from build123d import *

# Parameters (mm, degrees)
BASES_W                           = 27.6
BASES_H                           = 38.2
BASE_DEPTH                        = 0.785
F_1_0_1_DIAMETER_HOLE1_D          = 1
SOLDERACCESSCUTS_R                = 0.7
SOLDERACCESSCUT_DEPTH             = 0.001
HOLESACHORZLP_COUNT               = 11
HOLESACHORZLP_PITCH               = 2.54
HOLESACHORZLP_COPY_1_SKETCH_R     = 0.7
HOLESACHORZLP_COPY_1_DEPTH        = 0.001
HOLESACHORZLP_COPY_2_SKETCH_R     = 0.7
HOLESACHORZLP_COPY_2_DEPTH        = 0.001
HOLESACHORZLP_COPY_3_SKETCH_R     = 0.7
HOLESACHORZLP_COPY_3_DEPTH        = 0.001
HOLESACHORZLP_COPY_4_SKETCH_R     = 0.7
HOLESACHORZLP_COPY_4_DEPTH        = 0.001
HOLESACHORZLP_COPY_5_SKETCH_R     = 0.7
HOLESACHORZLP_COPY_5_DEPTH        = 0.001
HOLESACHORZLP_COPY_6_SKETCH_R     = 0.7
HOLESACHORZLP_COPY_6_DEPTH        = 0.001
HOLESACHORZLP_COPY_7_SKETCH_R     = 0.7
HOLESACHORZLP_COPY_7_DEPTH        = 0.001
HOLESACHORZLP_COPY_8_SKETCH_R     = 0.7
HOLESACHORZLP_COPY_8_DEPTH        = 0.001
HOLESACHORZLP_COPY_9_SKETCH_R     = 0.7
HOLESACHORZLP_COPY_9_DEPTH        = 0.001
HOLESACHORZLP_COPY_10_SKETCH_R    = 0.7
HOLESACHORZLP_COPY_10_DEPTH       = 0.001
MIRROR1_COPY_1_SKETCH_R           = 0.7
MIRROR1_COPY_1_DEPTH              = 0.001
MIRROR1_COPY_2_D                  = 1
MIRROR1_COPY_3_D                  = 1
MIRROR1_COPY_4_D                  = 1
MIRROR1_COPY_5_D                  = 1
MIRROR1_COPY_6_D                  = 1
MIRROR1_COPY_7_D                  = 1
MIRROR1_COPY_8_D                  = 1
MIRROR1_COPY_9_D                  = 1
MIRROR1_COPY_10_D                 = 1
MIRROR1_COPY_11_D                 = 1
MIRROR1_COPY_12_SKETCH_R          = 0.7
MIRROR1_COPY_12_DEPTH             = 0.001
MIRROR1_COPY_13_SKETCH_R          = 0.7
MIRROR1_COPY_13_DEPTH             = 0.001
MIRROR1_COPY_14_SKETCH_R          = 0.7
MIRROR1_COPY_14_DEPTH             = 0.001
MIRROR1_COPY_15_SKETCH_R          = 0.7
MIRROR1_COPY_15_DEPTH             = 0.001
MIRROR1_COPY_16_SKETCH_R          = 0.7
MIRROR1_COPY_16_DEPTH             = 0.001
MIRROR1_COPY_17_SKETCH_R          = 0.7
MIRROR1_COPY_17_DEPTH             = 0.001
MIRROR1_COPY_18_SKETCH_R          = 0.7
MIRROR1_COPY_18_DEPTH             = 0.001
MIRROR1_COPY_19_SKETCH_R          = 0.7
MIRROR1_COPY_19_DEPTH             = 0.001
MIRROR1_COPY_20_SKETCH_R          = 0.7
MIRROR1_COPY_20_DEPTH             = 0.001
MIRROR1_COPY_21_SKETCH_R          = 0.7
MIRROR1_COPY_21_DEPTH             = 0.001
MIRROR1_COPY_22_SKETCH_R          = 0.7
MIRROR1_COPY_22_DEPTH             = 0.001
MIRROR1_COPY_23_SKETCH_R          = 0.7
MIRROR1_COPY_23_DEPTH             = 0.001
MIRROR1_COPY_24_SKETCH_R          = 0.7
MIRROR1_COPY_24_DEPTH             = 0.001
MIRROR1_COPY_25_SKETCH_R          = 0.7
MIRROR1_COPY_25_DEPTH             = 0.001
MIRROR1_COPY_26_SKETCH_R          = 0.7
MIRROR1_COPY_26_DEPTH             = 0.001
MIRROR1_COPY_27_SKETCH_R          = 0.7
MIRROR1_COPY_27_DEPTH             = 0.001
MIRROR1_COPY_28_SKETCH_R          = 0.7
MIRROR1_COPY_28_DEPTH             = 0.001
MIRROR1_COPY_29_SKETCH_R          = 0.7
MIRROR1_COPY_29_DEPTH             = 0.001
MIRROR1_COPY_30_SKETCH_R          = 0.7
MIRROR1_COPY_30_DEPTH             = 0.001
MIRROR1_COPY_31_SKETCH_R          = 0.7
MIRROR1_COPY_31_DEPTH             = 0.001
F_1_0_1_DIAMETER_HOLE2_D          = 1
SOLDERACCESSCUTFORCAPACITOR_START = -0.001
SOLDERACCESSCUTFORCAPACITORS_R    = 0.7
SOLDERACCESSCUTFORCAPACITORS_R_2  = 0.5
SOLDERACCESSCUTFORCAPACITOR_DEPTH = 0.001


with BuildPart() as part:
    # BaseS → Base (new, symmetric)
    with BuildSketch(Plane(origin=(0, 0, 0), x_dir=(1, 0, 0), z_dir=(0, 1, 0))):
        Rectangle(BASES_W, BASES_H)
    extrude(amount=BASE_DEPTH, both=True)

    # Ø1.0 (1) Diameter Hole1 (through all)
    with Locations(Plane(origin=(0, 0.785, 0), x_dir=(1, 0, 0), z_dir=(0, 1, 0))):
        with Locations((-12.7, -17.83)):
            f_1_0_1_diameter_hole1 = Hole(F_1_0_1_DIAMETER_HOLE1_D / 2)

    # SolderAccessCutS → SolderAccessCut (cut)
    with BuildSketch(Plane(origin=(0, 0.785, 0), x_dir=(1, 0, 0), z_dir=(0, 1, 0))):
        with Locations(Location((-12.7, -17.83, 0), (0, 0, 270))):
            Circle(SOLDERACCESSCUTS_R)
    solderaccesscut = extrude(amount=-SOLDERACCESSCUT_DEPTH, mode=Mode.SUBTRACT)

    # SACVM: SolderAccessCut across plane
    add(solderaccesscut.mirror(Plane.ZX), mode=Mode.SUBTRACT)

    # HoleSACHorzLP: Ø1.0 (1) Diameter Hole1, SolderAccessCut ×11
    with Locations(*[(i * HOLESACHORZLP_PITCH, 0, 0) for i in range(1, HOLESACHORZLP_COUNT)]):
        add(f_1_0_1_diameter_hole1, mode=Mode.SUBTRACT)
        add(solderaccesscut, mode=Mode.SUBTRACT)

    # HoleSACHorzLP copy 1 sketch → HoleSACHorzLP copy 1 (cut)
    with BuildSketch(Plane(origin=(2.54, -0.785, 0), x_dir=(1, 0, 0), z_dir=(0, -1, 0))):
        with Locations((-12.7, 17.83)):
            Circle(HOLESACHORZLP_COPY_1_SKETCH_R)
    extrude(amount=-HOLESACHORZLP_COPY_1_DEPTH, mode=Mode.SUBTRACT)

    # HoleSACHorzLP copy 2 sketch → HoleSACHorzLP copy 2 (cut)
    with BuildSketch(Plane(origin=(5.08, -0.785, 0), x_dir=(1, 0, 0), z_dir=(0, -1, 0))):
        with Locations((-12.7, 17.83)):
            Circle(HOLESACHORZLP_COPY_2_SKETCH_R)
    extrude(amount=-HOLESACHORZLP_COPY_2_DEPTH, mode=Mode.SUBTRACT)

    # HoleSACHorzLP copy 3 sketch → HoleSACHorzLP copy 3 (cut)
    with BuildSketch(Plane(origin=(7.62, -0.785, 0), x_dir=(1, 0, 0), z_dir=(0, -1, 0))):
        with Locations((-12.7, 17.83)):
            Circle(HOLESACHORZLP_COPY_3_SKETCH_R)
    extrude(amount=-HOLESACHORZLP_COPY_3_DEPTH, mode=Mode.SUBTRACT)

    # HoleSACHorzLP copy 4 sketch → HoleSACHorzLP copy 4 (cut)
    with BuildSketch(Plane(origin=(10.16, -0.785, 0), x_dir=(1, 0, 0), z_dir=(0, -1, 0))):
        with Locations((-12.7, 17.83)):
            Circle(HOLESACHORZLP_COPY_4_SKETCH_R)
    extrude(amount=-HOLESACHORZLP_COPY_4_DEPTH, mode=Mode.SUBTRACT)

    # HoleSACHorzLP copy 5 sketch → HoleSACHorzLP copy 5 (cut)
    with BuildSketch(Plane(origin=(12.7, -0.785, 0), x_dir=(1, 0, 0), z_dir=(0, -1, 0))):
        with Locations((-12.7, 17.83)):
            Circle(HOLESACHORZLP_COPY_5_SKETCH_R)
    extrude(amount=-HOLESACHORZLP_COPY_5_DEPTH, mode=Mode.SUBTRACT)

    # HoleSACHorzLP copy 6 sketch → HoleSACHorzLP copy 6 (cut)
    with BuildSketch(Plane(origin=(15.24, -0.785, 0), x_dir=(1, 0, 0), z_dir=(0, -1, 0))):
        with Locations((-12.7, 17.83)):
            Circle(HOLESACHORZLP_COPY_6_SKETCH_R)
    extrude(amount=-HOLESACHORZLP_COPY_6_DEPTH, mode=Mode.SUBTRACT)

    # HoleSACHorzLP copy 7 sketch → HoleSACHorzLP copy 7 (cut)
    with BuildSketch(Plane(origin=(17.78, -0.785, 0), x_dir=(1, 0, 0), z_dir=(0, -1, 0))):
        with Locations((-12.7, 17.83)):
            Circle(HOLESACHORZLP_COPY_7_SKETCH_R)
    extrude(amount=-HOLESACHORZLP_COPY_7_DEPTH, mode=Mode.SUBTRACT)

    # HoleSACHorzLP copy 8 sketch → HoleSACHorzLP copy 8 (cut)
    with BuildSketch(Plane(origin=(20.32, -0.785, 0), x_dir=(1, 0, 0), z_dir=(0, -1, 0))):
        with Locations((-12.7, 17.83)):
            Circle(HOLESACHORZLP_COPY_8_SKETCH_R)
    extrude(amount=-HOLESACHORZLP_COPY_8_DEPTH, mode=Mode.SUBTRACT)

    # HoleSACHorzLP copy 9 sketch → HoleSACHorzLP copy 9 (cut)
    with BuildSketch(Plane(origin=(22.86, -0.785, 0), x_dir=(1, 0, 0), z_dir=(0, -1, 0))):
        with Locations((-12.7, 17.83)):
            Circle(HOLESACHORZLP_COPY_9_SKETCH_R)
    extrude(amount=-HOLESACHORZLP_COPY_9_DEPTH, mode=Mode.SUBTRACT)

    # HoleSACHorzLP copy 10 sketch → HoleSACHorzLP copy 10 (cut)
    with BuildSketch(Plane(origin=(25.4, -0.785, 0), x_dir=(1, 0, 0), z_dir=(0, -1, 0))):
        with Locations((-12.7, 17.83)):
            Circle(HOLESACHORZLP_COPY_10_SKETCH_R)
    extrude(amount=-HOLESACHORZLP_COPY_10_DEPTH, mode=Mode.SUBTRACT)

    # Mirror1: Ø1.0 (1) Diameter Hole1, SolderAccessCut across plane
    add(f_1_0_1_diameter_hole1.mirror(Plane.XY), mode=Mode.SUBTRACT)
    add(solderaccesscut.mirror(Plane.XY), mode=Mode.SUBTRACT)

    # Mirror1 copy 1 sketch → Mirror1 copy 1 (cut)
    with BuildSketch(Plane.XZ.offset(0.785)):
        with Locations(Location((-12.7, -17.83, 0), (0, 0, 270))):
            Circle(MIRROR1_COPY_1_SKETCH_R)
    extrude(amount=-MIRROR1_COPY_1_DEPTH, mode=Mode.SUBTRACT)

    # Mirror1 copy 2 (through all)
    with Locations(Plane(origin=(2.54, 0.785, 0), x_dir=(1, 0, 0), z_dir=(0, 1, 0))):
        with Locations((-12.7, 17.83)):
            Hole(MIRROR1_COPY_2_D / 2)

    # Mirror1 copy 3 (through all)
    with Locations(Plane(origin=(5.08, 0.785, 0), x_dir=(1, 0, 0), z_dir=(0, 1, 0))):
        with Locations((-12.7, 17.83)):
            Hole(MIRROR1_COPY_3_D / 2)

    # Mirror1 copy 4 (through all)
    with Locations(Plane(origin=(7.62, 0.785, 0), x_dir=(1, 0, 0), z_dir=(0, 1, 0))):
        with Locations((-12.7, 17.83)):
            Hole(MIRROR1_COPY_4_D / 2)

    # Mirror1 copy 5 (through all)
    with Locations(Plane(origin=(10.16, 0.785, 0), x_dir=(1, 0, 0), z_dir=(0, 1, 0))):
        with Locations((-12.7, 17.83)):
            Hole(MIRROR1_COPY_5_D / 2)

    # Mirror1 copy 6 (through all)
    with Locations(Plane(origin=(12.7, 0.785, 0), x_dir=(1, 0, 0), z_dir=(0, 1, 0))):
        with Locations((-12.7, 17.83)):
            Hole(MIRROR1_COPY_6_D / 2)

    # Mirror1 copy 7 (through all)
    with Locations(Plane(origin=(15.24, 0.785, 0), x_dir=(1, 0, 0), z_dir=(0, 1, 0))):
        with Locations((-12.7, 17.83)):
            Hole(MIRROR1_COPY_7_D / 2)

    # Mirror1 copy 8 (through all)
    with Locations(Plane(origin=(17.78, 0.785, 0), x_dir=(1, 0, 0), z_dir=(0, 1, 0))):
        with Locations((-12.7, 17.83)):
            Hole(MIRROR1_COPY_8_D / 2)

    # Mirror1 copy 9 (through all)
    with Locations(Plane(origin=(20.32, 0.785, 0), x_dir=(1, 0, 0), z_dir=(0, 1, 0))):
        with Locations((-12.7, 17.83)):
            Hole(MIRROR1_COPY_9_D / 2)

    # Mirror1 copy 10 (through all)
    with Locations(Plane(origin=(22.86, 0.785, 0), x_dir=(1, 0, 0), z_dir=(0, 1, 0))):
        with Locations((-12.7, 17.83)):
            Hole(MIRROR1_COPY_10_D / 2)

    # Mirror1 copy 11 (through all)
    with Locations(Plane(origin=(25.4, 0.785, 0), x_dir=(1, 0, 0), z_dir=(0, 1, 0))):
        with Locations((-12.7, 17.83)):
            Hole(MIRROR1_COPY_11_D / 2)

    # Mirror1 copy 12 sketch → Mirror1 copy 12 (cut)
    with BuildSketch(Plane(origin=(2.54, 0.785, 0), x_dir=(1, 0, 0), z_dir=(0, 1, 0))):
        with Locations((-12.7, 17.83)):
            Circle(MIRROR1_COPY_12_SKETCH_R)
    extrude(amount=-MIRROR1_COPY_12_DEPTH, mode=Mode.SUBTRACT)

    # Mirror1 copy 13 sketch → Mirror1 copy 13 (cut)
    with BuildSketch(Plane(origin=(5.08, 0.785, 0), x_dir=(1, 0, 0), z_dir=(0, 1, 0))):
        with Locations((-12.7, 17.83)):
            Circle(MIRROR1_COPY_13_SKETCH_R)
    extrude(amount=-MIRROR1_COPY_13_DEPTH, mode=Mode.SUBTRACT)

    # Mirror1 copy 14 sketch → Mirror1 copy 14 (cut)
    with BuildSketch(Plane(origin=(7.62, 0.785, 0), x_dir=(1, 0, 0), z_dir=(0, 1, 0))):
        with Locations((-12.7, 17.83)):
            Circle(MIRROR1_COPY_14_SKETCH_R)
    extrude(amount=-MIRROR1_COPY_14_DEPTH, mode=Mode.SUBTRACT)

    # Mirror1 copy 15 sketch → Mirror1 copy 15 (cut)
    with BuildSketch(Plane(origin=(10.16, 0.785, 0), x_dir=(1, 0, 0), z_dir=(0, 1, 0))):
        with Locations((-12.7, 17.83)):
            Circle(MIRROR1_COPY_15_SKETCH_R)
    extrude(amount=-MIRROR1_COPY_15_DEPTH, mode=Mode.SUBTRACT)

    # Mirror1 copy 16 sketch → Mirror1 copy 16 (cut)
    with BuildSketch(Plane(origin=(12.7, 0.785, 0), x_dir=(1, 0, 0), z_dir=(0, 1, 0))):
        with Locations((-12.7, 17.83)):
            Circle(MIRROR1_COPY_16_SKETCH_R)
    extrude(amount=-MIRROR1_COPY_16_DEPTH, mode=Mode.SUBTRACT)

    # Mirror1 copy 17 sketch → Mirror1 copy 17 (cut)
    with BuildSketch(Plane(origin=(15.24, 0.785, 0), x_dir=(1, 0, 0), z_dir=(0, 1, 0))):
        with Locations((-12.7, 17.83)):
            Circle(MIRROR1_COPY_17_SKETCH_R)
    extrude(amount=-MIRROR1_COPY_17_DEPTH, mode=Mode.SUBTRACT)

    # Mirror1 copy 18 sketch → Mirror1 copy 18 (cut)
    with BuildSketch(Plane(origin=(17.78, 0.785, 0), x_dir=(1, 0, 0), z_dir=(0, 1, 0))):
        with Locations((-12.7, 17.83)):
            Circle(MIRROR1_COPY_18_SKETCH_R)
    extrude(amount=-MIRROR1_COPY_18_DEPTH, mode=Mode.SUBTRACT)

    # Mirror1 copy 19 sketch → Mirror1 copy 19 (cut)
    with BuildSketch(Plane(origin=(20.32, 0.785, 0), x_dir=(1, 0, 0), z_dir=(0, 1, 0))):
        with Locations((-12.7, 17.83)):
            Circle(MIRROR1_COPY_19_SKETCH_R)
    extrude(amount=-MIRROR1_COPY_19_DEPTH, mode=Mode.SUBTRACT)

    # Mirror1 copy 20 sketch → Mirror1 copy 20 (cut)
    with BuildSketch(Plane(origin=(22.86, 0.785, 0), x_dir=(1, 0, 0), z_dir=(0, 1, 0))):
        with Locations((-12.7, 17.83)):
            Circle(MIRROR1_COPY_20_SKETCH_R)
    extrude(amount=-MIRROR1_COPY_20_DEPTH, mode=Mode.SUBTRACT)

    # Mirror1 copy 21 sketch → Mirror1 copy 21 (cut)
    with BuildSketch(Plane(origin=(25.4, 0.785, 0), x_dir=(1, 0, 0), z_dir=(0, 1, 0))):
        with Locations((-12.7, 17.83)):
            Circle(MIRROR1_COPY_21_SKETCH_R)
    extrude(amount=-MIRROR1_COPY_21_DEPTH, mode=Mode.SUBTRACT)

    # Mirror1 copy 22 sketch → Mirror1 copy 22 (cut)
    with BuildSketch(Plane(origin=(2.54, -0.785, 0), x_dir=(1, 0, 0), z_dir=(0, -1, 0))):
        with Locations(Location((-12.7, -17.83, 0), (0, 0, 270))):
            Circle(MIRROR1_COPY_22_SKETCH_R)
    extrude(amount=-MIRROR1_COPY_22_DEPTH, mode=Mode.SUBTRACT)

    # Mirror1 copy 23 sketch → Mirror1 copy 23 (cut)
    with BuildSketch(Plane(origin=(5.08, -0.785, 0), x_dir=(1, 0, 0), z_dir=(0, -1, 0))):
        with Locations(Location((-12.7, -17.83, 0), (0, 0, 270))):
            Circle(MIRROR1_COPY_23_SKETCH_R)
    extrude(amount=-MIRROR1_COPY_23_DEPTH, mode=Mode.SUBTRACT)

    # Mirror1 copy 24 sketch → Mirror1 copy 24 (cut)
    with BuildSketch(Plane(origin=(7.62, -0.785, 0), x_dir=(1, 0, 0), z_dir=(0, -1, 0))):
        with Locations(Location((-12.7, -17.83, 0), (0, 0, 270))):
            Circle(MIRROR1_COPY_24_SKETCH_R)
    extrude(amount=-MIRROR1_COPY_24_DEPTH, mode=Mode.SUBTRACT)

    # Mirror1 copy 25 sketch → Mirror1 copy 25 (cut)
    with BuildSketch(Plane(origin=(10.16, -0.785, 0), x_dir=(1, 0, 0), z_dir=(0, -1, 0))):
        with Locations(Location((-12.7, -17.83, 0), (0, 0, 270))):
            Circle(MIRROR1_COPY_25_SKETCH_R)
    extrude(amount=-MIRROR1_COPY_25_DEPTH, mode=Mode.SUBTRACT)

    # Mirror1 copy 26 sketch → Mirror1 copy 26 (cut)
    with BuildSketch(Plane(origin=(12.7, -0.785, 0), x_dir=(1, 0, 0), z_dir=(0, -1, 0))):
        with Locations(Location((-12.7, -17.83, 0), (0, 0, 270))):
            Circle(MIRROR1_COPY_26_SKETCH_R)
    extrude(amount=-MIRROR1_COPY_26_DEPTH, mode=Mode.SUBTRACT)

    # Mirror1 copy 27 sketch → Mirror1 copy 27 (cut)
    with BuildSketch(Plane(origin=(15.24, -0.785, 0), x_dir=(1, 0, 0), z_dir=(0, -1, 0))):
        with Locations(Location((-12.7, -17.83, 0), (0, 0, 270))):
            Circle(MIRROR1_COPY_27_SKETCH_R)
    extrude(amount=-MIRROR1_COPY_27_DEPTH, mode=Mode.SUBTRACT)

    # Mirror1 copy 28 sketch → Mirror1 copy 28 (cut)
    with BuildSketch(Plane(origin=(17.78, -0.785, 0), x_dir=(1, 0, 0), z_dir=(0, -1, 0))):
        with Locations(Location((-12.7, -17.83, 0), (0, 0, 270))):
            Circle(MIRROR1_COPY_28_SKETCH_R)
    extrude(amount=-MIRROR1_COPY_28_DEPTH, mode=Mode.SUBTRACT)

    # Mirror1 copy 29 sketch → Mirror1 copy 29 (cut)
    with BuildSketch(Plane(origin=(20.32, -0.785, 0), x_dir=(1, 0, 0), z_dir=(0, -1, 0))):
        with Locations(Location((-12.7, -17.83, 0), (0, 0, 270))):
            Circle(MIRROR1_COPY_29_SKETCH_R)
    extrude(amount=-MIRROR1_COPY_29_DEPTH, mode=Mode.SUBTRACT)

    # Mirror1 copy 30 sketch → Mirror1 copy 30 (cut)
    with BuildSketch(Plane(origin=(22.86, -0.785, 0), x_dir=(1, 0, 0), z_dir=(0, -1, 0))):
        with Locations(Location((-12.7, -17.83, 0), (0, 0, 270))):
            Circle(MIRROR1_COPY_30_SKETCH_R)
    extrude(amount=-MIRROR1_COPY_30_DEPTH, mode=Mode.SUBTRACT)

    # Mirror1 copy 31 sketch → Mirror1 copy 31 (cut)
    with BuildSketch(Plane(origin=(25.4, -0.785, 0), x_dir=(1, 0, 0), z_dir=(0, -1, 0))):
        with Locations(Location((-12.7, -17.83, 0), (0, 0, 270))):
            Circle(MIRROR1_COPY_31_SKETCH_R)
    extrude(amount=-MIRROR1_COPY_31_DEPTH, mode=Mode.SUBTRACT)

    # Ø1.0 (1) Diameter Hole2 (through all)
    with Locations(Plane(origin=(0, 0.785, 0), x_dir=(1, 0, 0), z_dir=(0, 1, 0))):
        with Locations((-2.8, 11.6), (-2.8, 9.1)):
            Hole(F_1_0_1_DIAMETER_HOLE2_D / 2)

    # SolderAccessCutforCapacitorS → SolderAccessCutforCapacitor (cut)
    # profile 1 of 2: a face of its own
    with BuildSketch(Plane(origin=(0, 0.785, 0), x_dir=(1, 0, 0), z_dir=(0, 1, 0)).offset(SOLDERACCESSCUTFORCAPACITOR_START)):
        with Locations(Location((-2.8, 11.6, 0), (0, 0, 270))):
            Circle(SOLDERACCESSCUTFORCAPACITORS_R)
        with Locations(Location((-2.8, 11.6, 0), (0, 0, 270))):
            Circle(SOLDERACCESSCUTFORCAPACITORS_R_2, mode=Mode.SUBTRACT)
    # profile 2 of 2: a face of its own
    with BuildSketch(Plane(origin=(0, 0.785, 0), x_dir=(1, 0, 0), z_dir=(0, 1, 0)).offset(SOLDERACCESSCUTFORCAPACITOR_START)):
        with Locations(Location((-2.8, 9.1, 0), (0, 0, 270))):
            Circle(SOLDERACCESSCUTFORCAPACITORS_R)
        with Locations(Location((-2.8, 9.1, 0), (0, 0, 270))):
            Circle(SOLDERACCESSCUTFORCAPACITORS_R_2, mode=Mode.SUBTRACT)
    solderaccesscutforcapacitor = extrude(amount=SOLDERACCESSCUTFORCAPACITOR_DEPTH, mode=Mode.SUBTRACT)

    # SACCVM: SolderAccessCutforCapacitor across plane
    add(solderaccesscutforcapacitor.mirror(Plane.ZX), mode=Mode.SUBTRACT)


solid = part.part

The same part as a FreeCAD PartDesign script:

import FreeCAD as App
import Part
import Sketcher
from FreeCAD import Vector
Q = App.Units.Quantity


def add_polygon(sketch, points):
    """Adds a closed chain of lines whose ends are joined by coincident constraints."""
    first, n = sketch.GeometryCount, len(points)
    for a, b in zip(points, points[1:] + points[:1]):
        sketch.addGeometry(Part.LineSegment(App.Vector(*a, 0), App.Vector(*b, 0)), False)
    for i in range(n):
        sketch.addConstraint(Sketcher.Constraint("Coincident", first + i, 2, first + (i + 1) % n, 1))

doc = App.newDocument("Part")
body = doc.addObject("PartDesign::Body", "Body")

# Sketch on XZ plane
sketch1 = doc.addObject("Sketcher::SketchObject", "Sketch")
body.addObject(sketch1)
sketch1.AttachmentSupport = (doc.XZ_Plane, [""])
sketch1.MapMode = "FlatFace"
add_polygon(sketch1, [(-14, -19), (-14, 19), (14, 19), (14, -19)])  # lines 0-3
sketch1.addConstraint([
    Sketcher.Constraint("Vertical", 0),
    Sketcher.Constraint("Horizontal", 1),
    Sketcher.Constraint("Vertical", 2),
    Sketcher.Constraint("Horizontal", 3),
    Sketcher.Constraint("Symmetric", 0, 2, 2, 2, -1, 1),
    Sketcher.Constraint("DistanceX", 1, 1, 1, 2, Q("27.6 mm")),
    Sketcher.Constraint("DistanceY", 0, 1, 0, 2, Q("38.2 mm")),
])
pad1 = doc.addObject("PartDesign::Pad", "Pad")
body.addObject(pad1)
pad1.Profile = sketch1
pad1.Length = 1.57
pad1.Midplane = True

# Sketch on XZ plane
sketch2 = doc.addObject("Sketcher::SketchObject", "Sketch001")
body.addObject(sketch2)
sketch2.AttachmentSupport = (doc.XZ_Plane, [""])
sketch2.MapMode = "FlatFace"
sketch2.AttachmentOffset = App.Placement(Vector(0, 0, -0.785), App.Rotation())
sketch2.addGeometry(Part.Circle(Vector(-12.7, 17.8, 0), Vector(0, 0, 1), 0.5), False)
sketch2.addConstraint([
    Sketcher.Constraint("Diameter", 0, Q("1 mm")),
    Sketcher.Constraint("DistanceX", 0, 3, -1, 1, Q("12.7 mm")),
    Sketcher.Constraint("DistanceY", -1, 1, 0, 3, Q("17.83 mm")),
])
doc.recompute()
hole = doc.addObject("PartDesign::Hole", "Hole")
body.addObject(hole)
hole.Profile = sketch2
hole.ThreadType = "None"
hole.Diameter = 1
hole.DepthType = "ThroughAll"
hole.Reversed = True

# Sketch on XZ plane
sketch3 = doc.addObject("Sketcher::SketchObject", "Sketch002")
body.addObject(sketch3)
sketch3.AttachmentSupport = (doc.XZ_Plane, [""])
sketch3.MapMode = "FlatFace"
sketch3.AttachmentOffset = App.Placement(Vector(0, 0, -0.785), App.Rotation())
sketch3.addGeometry(Part.Circle(Vector(-12.7, 17.8, 0), Vector(0, 0, 1), 0.7), False)
sketch3.addConstraint([
    Sketcher.Constraint("Diameter", 0, Q("1.4 mm")),
    Sketcher.Constraint("DistanceX", 0, 3, -1, 1, Q("12.7 mm")),
    Sketcher.Constraint("DistanceY", -1, 1, 0, 3, Q("17.83 mm")),
])
pocket1 = doc.addObject("PartDesign::Pocket", "Pocket")
body.addObject(pocket1)
pocket1.Profile = sketch3
pocket1.Length = 0.001
pocket1.Reversed = True
doc.recompute()

mirrored = doc.addObject("PartDesign::Mirrored", "Mirrored")
body.addObject(mirrored)
mirrored.Originals = [pocket1]
mirrored.MirrorPlane = (doc.XZ_Plane, [""])
body.Tip = mirrored
doc.recompute()

linearpattern = doc.addObject("PartDesign::LinearPattern", "LinearPattern")
body.addObject(linearpattern)
linearpattern.Originals = [hole, pocket1]
linearpattern.Direction = (doc.X_Axis, [""])
linearpattern.Mode = "offset"
linearpattern.Offset = 2.54
linearpattern.Occurrences = 11
body.Tip = linearpattern

# Sketch on XZ plane
sketch4 = doc.addObject("Sketcher::SketchObject", "Sketch003")
body.addObject(sketch4)
sketch4.AttachmentSupport = (doc.XZ_Plane, [""])
sketch4.MapMode = "FlatFace"
sketch4.AttachmentOffset = App.Placement(Vector(0, 0, 0.785), App.Rotation())
sketch4.addGeometry(Part.Circle(Vector(-10.2, 17.8, 0), Vector(0, 0, 1), 0.7), False)
sketch4.addConstraint([
    Sketcher.Constraint("Diameter", 0, Q("1.4 mm")),
    Sketcher.Constraint("DistanceX", 0, 3, -1, 1, Q("10.16 mm")),
    Sketcher.Constraint("DistanceY", -1, 1, 0, 3, Q("17.83 mm")),
])
pocket2 = doc.addObject("PartDesign::Pocket", "Pocket001")
body.addObject(pocket2)
pocket2.Profile = sketch4
pocket2.Length = 0.001

# Sketch on XZ plane
sketch5 = doc.addObject("Sketcher::SketchObject", "Sketch004")
body.addObject(sketch5)
sketch5.AttachmentSupport = (doc.XZ_Plane, [""])
sketch5.MapMode = "FlatFace"
sketch5.AttachmentOffset = App.Placement(Vector(0, 0, 0.785), App.Rotation())
sketch5.addGeometry(Part.Circle(Vector(-7.6, 17.8, 0), Vector(0, 0, 1), 0.7), False)
sketch5.addConstraint([
    Sketcher.Constraint("Diameter", 0, Q("1.4 mm")),
    Sketcher.Constraint("DistanceX", 0, 3, -1, 1, Q("7.62 mm")),
    Sketcher.Constraint("DistanceY", -1, 1, 0, 3, Q("17.83 mm")),
])
pocket3 = doc.addObject("PartDesign::Pocket", "Pocket002")
body.addObject(pocket3)
pocket3.Profile = sketch5
pocket3.Length = 0.001

# Sketch on XZ plane
sketch6 = doc.addObject("Sketcher::SketchObject", "Sketch005")
body.addObject(sketch6)
sketch6.AttachmentSupport = (doc.XZ_Plane, [""])
sketch6.MapMode = "FlatFace"
sketch6.AttachmentOffset = App.Placement(Vector(0, 0, 0.785), App.Rotation())
sketch6.addGeometry(Part.Circle(Vector(-5.1, 17.8, 0), Vector(0, 0, 1), 0.7), False)
sketch6.addConstraint([
    Sketcher.Constraint("Diameter", 0, Q("1.4 mm")),
    Sketcher.Constraint("DistanceX", 0, 3, -1, 1, Q("5.08 mm")),
    Sketcher.Constraint("DistanceY", -1, 1, 0, 3, Q("17.83 mm")),
])
pocket4 = doc.addObject("PartDesign::Pocket", "Pocket003")
body.addObject(pocket4)
pocket4.Profile = sketch6
pocket4.Length = 0.001

# Sketch on XZ plane
sketch7 = doc.addObject("Sketcher::SketchObject", "Sketch006")
body.addObject(sketch7)
sketch7.AttachmentSupport = (doc.XZ_Plane, [""])
sketch7.MapMode = "FlatFace"
sketch7.AttachmentOffset = App.Placement(Vector(0, 0, 0.785), App.Rotation())
sketch7.addGeometry(Part.Circle(Vector(-2.5, 17.8, 0), Vector(0, 0, 1), 0.7), False)
sketch7.addConstraint([
    Sketcher.Constraint("Diameter", 0, Q("1.4 mm")),
    Sketcher.Constraint("DistanceX", 0, 3, -1, 1, Q("2.54 mm")),
    Sketcher.Constraint("DistanceY", -1, 1, 0, 3, Q("17.83 mm")),
])
pocket5 = doc.addObject("PartDesign::Pocket", "Pocket004")
body.addObject(pocket5)
pocket5.Profile = sketch7
pocket5.Length = 0.001

# Sketch on XZ plane
sketch8 = doc.addObject("Sketcher::SketchObject", "Sketch007")
body.addObject(sketch8)
sketch8.AttachmentSupport = (doc.XZ_Plane, [""])
sketch8.MapMode = "FlatFace"
sketch8.AttachmentOffset = App.Placement(Vector(0, 0, 0.785), App.Rotation())
sketch8.addGeometry(Part.Circle(Vector(0, 17.8, 0), Vector(0, 0, 1), 0.7), False)
sketch8.addConstraint([
    Sketcher.Constraint("PointOnObject", 0, 3, -2),
    Sketcher.Constraint("Diameter", 0, Q("1.4 mm")),
    Sketcher.Constraint("DistanceY", -1, 1, 0, 3, Q("17.83 mm")),
])
pocket6 = doc.addObject("PartDesign::Pocket", "Pocket005")
body.addObject(pocket6)
pocket6.Profile = sketch8
pocket6.Length = 0.001

# Sketch on XZ plane
sketch9 = doc.addObject("Sketcher::SketchObject", "Sketch008")
body.addObject(sketch9)
sketch9.AttachmentSupport = (doc.XZ_Plane, [""])
sketch9.MapMode = "FlatFace"
sketch9.AttachmentOffset = App.Placement(Vector(0, 0, 0.785), App.Rotation())
sketch9.addGeometry(Part.Circle(Vector(2.5, 17.8, 0), Vector(0, 0, 1), 0.7), False)
sketch9.addConstraint([
    Sketcher.Constraint("Diameter", 0, Q("1.4 mm")),
    Sketcher.Constraint("DistanceX", -1, 1, 0, 3, Q("2.54 mm")),
    Sketcher.Constraint("DistanceY", -1, 1, 0, 3, Q("17.83 mm")),
])
pocket7 = doc.addObject("PartDesign::Pocket", "Pocket006")
body.addObject(pocket7)
pocket7.Profile = sketch9
pocket7.Length = 0.001

# Sketch on XZ plane
sketch10 = doc.addObject("Sketcher::SketchObject", "Sketch009")
body.addObject(sketch10)
sketch10.AttachmentSupport = (doc.XZ_Plane, [""])
sketch10.MapMode = "FlatFace"
sketch10.AttachmentOffset = App.Placement(Vector(0, 0, 0.785), App.Rotation())
sketch10.addGeometry(Part.Circle(Vector(5.1, 17.8, 0), Vector(0, 0, 1), 0.7), False)
sketch10.addConstraint([
    Sketcher.Constraint("Diameter", 0, Q("1.4 mm")),
    Sketcher.Constraint("DistanceX", -1, 1, 0, 3, Q("5.08 mm")),
    Sketcher.Constraint("DistanceY", -1, 1, 0, 3, Q("17.83 mm")),
])
pocket8 = doc.addObject("PartDesign::Pocket", "Pocket007")
body.addObject(pocket8)
pocket8.Profile = sketch10
pocket8.Length = 0.001

# Sketch on XZ plane
sketch11 = doc.addObject("Sketcher::SketchObject", "Sketch010")
body.addObject(sketch11)
sketch11.AttachmentSupport = (doc.XZ_Plane, [""])
sketch11.MapMode = "FlatFace"
sketch11.AttachmentOffset = App.Placement(Vector(0, 0, 0.785), App.Rotation())
sketch11.addGeometry(Part.Circle(Vector(7.6, 17.8, 0), Vector(0, 0, 1), 0.7), False)
sketch11.addConstraint([
    Sketcher.Constraint("Diameter", 0, Q("1.4 mm")),
    Sketcher.Constraint("DistanceX", -1, 1, 0, 3, Q("7.62 mm")),
    Sketcher.Constraint("DistanceY", -1, 1, 0, 3, Q("17.83 mm")),
])
pocket9 = doc.addObject("PartDesign::Pocket", "Pocket008")
body.addObject(pocket9)
pocket9.Profile = sketch11
pocket9.Length = 0.001

# Sketch on XZ plane
sketch12 = doc.addObject("Sketcher::SketchObject", "Sketch011")
body.addObject(sketch12)
sketch12.AttachmentSupport = (doc.XZ_Plane, [""])
sketch12.MapMode = "FlatFace"
sketch12.AttachmentOffset = App.Placement(Vector(0, 0, 0.785), App.Rotation())
sketch12.addGeometry(Part.Circle(Vector(10.2, 17.8, 0), Vector(0, 0, 1), 0.7), False)
sketch12.addConstraint([
    Sketcher.Constraint("Diameter", 0, Q("1.4 mm")),
    Sketcher.Constraint("DistanceX", -1, 1, 0, 3, Q("10.16 mm")),
    Sketcher.Constraint("DistanceY", -1, 1, 0, 3, Q("17.83 mm")),
])
pocket10 = doc.addObject("PartDesign::Pocket", "Pocket009")
body.addObject(pocket10)
pocket10.Profile = sketch12
pocket10.Length = 0.001

# Sketch on XZ plane
sketch13 = doc.addObject("Sketcher::SketchObject", "Sketch012")
body.addObject(sketch13)
sketch13.AttachmentSupport = (doc.XZ_Plane, [""])
sketch13.MapMode = "FlatFace"
sketch13.AttachmentOffset = App.Placement(Vector(0, 0, 0.785), App.Rotation())
sketch13.addGeometry(Part.Circle(Vector(12.7, 17.8, 0), Vector(0, 0, 1), 0.7), False)
sketch13.addConstraint([
    Sketcher.Constraint("Diameter", 0, Q("1.4 mm")),
    Sketcher.Constraint("DistanceX", -1, 1, 0, 3, Q("12.7 mm")),
    Sketcher.Constraint("DistanceY", -1, 1, 0, 3, Q("17.83 mm")),
])
pocket11 = doc.addObject("PartDesign::Pocket", "Pocket010")
body.addObject(pocket11)
pocket11.Profile = sketch13
pocket11.Length = 0.001
doc.recompute()

mirrored2 = doc.addObject("PartDesign::Mirrored", "Mirrored001")
body.addObject(mirrored2)
mirrored2.Originals = [hole, pocket1]
mirrored2.MirrorPlane = (doc.XY_Plane, [""])
body.Tip = mirrored2

# Sketch on XZ plane
sketch14 = doc.addObject("Sketcher::SketchObject", "Sketch013")
body.addObject(sketch14)
sketch14.AttachmentSupport = (doc.XZ_Plane, [""])
sketch14.MapMode = "FlatFace"
sketch14.AttachmentOffset = App.Placement(Vector(0, 0, 0.785), App.Rotation())
sketch14.addGeometry(Part.Circle(Vector(-12.7, -17.8, 0), Vector(0, 0, 1), 0.7), False)
sketch14.addConstraint([
    Sketcher.Constraint("Diameter", 0, Q("1.4 mm")),
    Sketcher.Constraint("DistanceX", 0, 3, -1, 1, Q("12.7 mm")),
    Sketcher.Constraint("DistanceY", 0, 3, -1, 1, Q("17.83 mm")),
])
pocket12 = doc.addObject("PartDesign::Pocket", "Pocket011")
body.addObject(pocket12)
pocket12.Profile = sketch14
pocket12.Length = 0.001

# Sketch on XZ plane
sketch15 = doc.addObject("Sketcher::SketchObject", "Sketch014")
body.addObject(sketch15)
sketch15.AttachmentSupport = (doc.XZ_Plane, [""])
sketch15.MapMode = "FlatFace"
sketch15.AttachmentOffset = App.Placement(Vector(0, 0, -0.785), App.Rotation())
sketch15.addGeometry(Part.Circle(Vector(-10.2, -17.8, 0), Vector(0, 0, 1), 0.5), False)
sketch15.addConstraint([
    Sketcher.Constraint("Diameter", 0, Q("1 mm")),
    Sketcher.Constraint("DistanceX", 0, 3, -1, 1, Q("10.16 mm")),
    Sketcher.Constraint("DistanceY", 0, 3, -1, 1, Q("17.83 mm")),
])
doc.recompute()
hole2 = doc.addObject("PartDesign::Hole", "Hole001")
body.addObject(hole2)
hole2.Profile = sketch15
hole2.ThreadType = "None"
hole2.Diameter = 1
hole2.DepthType = "ThroughAll"
hole2.Reversed = True

# Sketch on XZ plane
sketch16 = doc.addObject("Sketcher::SketchObject", "Sketch015")
body.addObject(sketch16)
sketch16.AttachmentSupport = (doc.XZ_Plane, [""])
sketch16.MapMode = "FlatFace"
sketch16.AttachmentOffset = App.Placement(Vector(0, 0, -0.785), App.Rotation())
sketch16.addGeometry(Part.Circle(Vector(-7.6, -17.8, 0), Vector(0, 0, 1), 0.5), False)
sketch16.addConstraint([
    Sketcher.Constraint("Diameter", 0, Q("1 mm")),
    Sketcher.Constraint("DistanceX", 0, 3, -1, 1, Q("7.62 mm")),
    Sketcher.Constraint("DistanceY", 0, 3, -1, 1, Q("17.83 mm")),
])
doc.recompute()
hole3 = doc.addObject("PartDesign::Hole", "Hole002")
body.addObject(hole3)
hole3.Profile = sketch16
hole3.ThreadType = "None"
hole3.Diameter = 1
hole3.DepthType = "ThroughAll"
hole3.Reversed = True

# Sketch on XZ plane
sketch17 = doc.addObject("Sketcher::SketchObject", "Sketch016")
body.addObject(sketch17)
sketch17.AttachmentSupport = (doc.XZ_Plane, [""])
sketch17.MapMode = "FlatFace"
sketch17.AttachmentOffset = App.Placement(Vector(0, 0, -0.785), App.Rotation())
sketch17.addGeometry(Part.Circle(Vector(-5.1, -17.8, 0), Vector(0, 0, 1), 0.5), False)
sketch17.addConstraint([
    Sketcher.Constraint("Diameter", 0, Q("1 mm")),
    Sketcher.Constraint("DistanceX", 0, 3, -1, 1, Q("5.08 mm")),
    Sketcher.Constraint("DistanceY", 0, 3, -1, 1, Q("17.83 mm")),
])
doc.recompute()
hole4 = doc.addObject("PartDesign::Hole", "Hole003")
body.addObject(hole4)
hole4.Profile = sketch17
hole4.ThreadType = "None"
hole4.Diameter = 1
hole4.DepthType = "ThroughAll"
hole4.Reversed = True

# Sketch on XZ plane
sketch18 = doc.addObject("Sketcher::SketchObject", "Sketch017")
body.addObject(sketch18)
sketch18.AttachmentSupport = (doc.XZ_Plane, [""])
sketch18.MapMode = "FlatFace"
sketch18.AttachmentOffset = App.Placement(Vector(0, 0, -0.785), App.Rotation())
sketch18.addGeometry(Part.Circle(Vector(-2.5, -17.8, 0), Vector(0, 0, 1), 0.5), False)
sketch18.addConstraint([
    Sketcher.Constraint("Diameter", 0, Q("1 mm")),
    Sketcher.Constraint("DistanceX", 0, 3, -1, 1, Q("2.54 mm")),
    Sketcher.Constraint("DistanceY", 0, 3, -1, 1, Q("17.83 mm")),
])
doc.recompute()
hole5 = doc.addObject("PartDesign::Hole", "Hole004")
body.addObject(hole5)
hole5.Profile = sketch18
hole5.ThreadType = "None"
hole5.Diameter = 1
hole5.DepthType = "ThroughAll"
hole5.Reversed = True

# Sketch on XZ plane
sketch19 = doc.addObject("Sketcher::SketchObject", "Sketch018")
body.addObject(sketch19)
sketch19.AttachmentSupport = (doc.XZ_Plane, [""])
sketch19.MapMode = "FlatFace"
sketch19.AttachmentOffset = App.Placement(Vector(0, 0, -0.785), App.Rotation())
sketch19.addGeometry(Part.Circle(Vector(0, -17.8, 0), Vector(0, 0, 1), 0.5), False)
sketch19.addConstraint([
    Sketcher.Constraint("PointOnObject", 0, 3, -2),
    Sketcher.Constraint("Diameter", 0, Q("1 mm")),
    Sketcher.Constraint("DistanceY", 0, 3, -1, 1, Q("17.83 mm")),
])
doc.recompute()
hole6 = doc.addObject("PartDesign::Hole", "Hole005")
body.addObject(hole6)
hole6.Profile = sketch19
hole6.ThreadType = "None"
hole6.Diameter = 1
hole6.DepthType = "ThroughAll"
hole6.Reversed = True

# Sketch on XZ plane
sketch20 = doc.addObject("Sketcher::SketchObject", "Sketch019")
body.addObject(sketch20)
sketch20.AttachmentSupport = (doc.XZ_Plane, [""])
sketch20.MapMode = "FlatFace"
sketch20.AttachmentOffset = App.Placement(Vector(0, 0, -0.785), App.Rotation())
sketch20.addGeometry(Part.Circle(Vector(2.5, -17.8, 0), Vector(0, 0, 1), 0.5), False)
sketch20.addConstraint([
    Sketcher.Constraint("Diameter", 0, Q("1 mm")),
    Sketcher.Constraint("DistanceX", -1, 1, 0, 3, Q("2.54 mm")),
    Sketcher.Constraint("DistanceY", 0, 3, -1, 1, Q("17.83 mm")),
])
doc.recompute()
hole7 = doc.addObject("PartDesign::Hole", "Hole006")
body.addObject(hole7)
hole7.Profile = sketch20
hole7.ThreadType = "None"
hole7.Diameter = 1
hole7.DepthType = "ThroughAll"
hole7.Reversed = True

# Sketch on XZ plane
sketch21 = doc.addObject("Sketcher::SketchObject", "Sketch020")
body.addObject(sketch21)
sketch21.AttachmentSupport = (doc.XZ_Plane, [""])
sketch21.MapMode = "FlatFace"
sketch21.AttachmentOffset = App.Placement(Vector(0, 0, -0.785), App.Rotation())
sketch21.addGeometry(Part.Circle(Vector(5.1, -17.8, 0), Vector(0, 0, 1), 0.5), False)
sketch21.addConstraint([
    Sketcher.Constraint("Diameter", 0, Q("1 mm")),
    Sketcher.Constraint("DistanceX", -1, 1, 0, 3, Q("5.08 mm")),
    Sketcher.Constraint("DistanceY", 0, 3, -1, 1, Q("17.83 mm")),
])
doc.recompute()
hole8 = doc.addObject("PartDesign::Hole", "Hole007")
body.addObject(hole8)
hole8.Profile = sketch21
hole8.ThreadType = "None"
hole8.Diameter = 1
hole8.DepthType = "ThroughAll"
hole8.Reversed = True

# Sketch on XZ plane
sketch22 = doc.addObject("Sketcher::SketchObject", "Sketch021")
body.addObject(sketch22)
sketch22.AttachmentSupport = (doc.XZ_Plane, [""])
sketch22.MapMode = "FlatFace"
sketch22.AttachmentOffset = App.Placement(Vector(0, 0, -0.785), App.Rotation())
sketch22.addGeometry(Part.Circle(Vector(7.6, -17.8, 0), Vector(0, 0, 1), 0.5), False)
sketch22.addConstraint([
    Sketcher.Constraint("Diameter", 0, Q("1 mm")),
    Sketcher.Constraint("DistanceX", -1, 1, 0, 3, Q("7.62 mm")),
    Sketcher.Constraint("DistanceY", 0, 3, -1, 1, Q("17.83 mm")),
])
doc.recompute()
hole9 = doc.addObject("PartDesign::Hole", "Hole008")
body.addObject(hole9)
hole9.Profile = sketch22
hole9.ThreadType = "None"
hole9.Diameter = 1
hole9.DepthType = "ThroughAll"
hole9.Reversed = True

# Sketch on XZ plane
sketch23 = doc.addObject("Sketcher::SketchObject", "Sketch022")
body.addObject(sketch23)
sketch23.AttachmentSupport = (doc.XZ_Plane, [""])
sketch23.MapMode = "FlatFace"
sketch23.AttachmentOffset = App.Placement(Vector(0, 0, -0.785), App.Rotation())
sketch23.addGeometry(Part.Circle(Vector(10.2, -17.8, 0), Vector(0, 0, 1), 0.5), False)
sketch23.addConstraint([
    Sketcher.Constraint("Diameter", 0, Q("1 mm")),
    Sketcher.Constraint("DistanceX", -1, 1, 0, 3, Q("10.16 mm")),
    Sketcher.Constraint("DistanceY", 0, 3, -1, 1, Q("17.83 mm")),
])
doc.recompute()
hole10 = doc.addObject("PartDesign::Hole", "Hole009")
body.addObject(hole10)
hole10.Profile = sketch23
hole10.ThreadType = "None"
hole10.Diameter = 1
hole10.DepthType = "ThroughAll"
hole10.Reversed = True

# Sketch on XZ plane
sketch24 = doc.addObject("Sketcher::SketchObject", "Sketch023")
body.addObject(sketch24)
sketch24.AttachmentSupport = (doc.XZ_Plane, [""])
sketch24.MapMode = "FlatFace"
sketch24.AttachmentOffset = App.Placement(Vector(0, 0, -0.785), App.Rotation())
sketch24.addGeometry(Part.Circle(Vector(12.7, -17.8, 0), Vector(0, 0, 1), 0.5), False)
sketch24.addConstraint([
    Sketcher.Constraint("Diameter", 0, Q("1 mm")),
    Sketcher.Constraint("DistanceX", -1, 1, 0, 3, Q("12.7 mm")),
    Sketcher.Constraint("DistanceY", 0, 3, -1, 1, Q("17.83 mm")),
])
doc.recompute()
hole11 = doc.addObject("PartDesign::Hole", "Hole010")
body.addObject(hole11)
hole11.Profile = sketch24
hole11.ThreadType = "None"
hole11.Diameter = 1
hole11.DepthType = "ThroughAll"
hole11.Reversed = True

# Sketch on XZ plane
sketch25 = doc.addObject("Sketcher::SketchObject", "Sketch024")
body.addObject(sketch25)
sketch25.AttachmentSupport = (doc.XZ_Plane, [""])
sketch25.MapMode = "FlatFace"
sketch25.AttachmentOffset = App.Placement(Vector(0, 0, -0.785), App.Rotation())
sketch25.addGeometry(Part.Circle(Vector(-10.2, -17.8, 0), Vector(0, 0, 1), 0.7), False)
sketch25.addConstraint([
    Sketcher.Constraint("Diameter", 0, Q("1.4 mm")),
    Sketcher.Constraint("DistanceX", 0, 3, -1, 1, Q("10.16 mm")),
    Sketcher.Constraint("DistanceY", 0, 3, -1, 1, Q("17.83 mm")),
])
pocket13 = doc.addObject("PartDesign::Pocket", "Pocket012")
body.addObject(pocket13)
pocket13.Profile = sketch25
pocket13.Length = 0.001
pocket13.Reversed = True

# Sketch on XZ plane
sketch26 = doc.addObject("Sketcher::SketchObject", "Sketch025")
body.addObject(sketch26)
sketch26.AttachmentSupport = (doc.XZ_Plane, [""])
sketch26.MapMode = "FlatFace"
sketch26.AttachmentOffset = App.Placement(Vector(0, 0, -0.785), App.Rotation())
sketch26.addGeometry(Part.Circle(Vector(-7.6, -17.8, 0), Vector(0, 0, 1), 0.7), False)
sketch26.addConstraint([
    Sketcher.Constraint("Diameter", 0, Q("1.4 mm")),
    Sketcher.Constraint("DistanceX", 0, 3, -1, 1, Q("7.62 mm")),
    Sketcher.Constraint("DistanceY", 0, 3, -1, 1, Q("17.83 mm")),
])
pocket14 = doc.addObject("PartDesign::Pocket", "Pocket013")
body.addObject(pocket14)
pocket14.Profile = sketch26
pocket14.Length = 0.001
pocket14.Reversed = True

# Sketch on XZ plane
sketch27 = doc.addObject("Sketcher::SketchObject", "Sketch026")
body.addObject(sketch27)
sketch27.AttachmentSupport = (doc.XZ_Plane, [""])
sketch27.MapMode = "FlatFace"
sketch27.AttachmentOffset = App.Placement(Vector(0, 0, -0.785), App.Rotation())
sketch27.addGeometry(Part.Circle(Vector(-5.1, -17.8, 0), Vector(0, 0, 1), 0.7), False)
sketch27.addConstraint([
    Sketcher.Constraint("Diameter", 0, Q("1.4 mm")),
    Sketcher.Constraint("DistanceX", 0, 3, -1, 1, Q("5.08 mm")),
    Sketcher.Constraint("DistanceY", 0, 3, -1, 1, Q("17.83 mm")),
])
pocket15 = doc.addObject("PartDesign::Pocket", "Pocket014")
body.addObject(pocket15)
pocket15.Profile = sketch27
pocket15.Length = 0.001
pocket15.Reversed = True

# Sketch on XZ plane
sketch28 = doc.addObject("Sketcher::SketchObject", "Sketch027")
body.addObject(sketch28)
sketch28.AttachmentSupport = (doc.XZ_Plane, [""])
sketch28.MapMode = "FlatFace"
sketch28.AttachmentOffset = App.Placement(Vector(0, 0, -0.785), App.Rotation())
sketch28.addGeometry(Part.Circle(Vector(-2.5, -17.8, 0), Vector(0, 0, 1), 0.7), False)
sketch28.addConstraint([
    Sketcher.Constraint("Diameter", 0, Q("1.4 mm")),
    Sketcher.Constraint("DistanceX", 0, 3, -1, 1, Q("2.54 mm")),
    Sketcher.Constraint("DistanceY", 0, 3, -1, 1, Q("17.83 mm")),
])
pocket16 = doc.addObject("PartDesign::Pocket", "Pocket015")
body.addObject(pocket16)
pocket16.Profile = sketch28
pocket16.Length = 0.001
pocket16.Reversed = True

# Sketch on XZ plane
sketch29 = doc.addObject("Sketcher::SketchObject", "Sketch028")
body.addObject(sketch29)
sketch29.AttachmentSupport = (doc.XZ_Plane, [""])
sketch29.MapMode = "FlatFace"
sketch29.AttachmentOffset = App.Placement(Vector(0, 0, -0.785), App.Rotation())
sketch29.addGeometry(Part.Circle(Vector(0, -17.8, 0), Vector(0, 0, 1), 0.7), False)
sketch29.addConstraint([
    Sketcher.Constraint("PointOnObject", 0, 3, -2),
    Sketcher.Constraint("Diameter", 0, Q("1.4 mm")),
    Sketcher.Constraint("DistanceY", 0, 3, -1, 1, Q("17.83 mm")),
])
pocket17 = doc.addObject("PartDesign::Pocket", "Pocket016")
body.addObject(pocket17)
pocket17.Profile = sketch29
pocket17.Length = 0.001
pocket17.Reversed = True

# Sketch on XZ plane
sketch30 = doc.addObject("Sketcher::SketchObject", "Sketch029")
body.addObject(sketch30)
sketch30.AttachmentSupport = (doc.XZ_Plane, [""])
sketch30.MapMode = "FlatFace"
sketch30.AttachmentOffset = App.Placement(Vector(0, 0, -0.785), App.Rotation())
sketch30.addGeometry(Part.Circle(Vector(2.5, -17.8, 0), Vector(0, 0, 1), 0.7), False)
sketch30.addConstraint([
    Sketcher.Constraint("Diameter", 0, Q("1.4 mm")),
    Sketcher.Constraint("DistanceX", -1, 1, 0, 3, Q("2.54 mm")),
    Sketcher.Constraint("DistanceY", 0, 3, -1, 1, Q("17.83 mm")),
])
pocket18 = doc.addObject("PartDesign::Pocket", "Pocket017")
body.addObject(pocket18)
pocket18.Profile = sketch30
pocket18.Length = 0.001
pocket18.Reversed = True

# Sketch on XZ plane
sketch31 = doc.addObject("Sketcher::SketchObject", "Sketch030")
body.addObject(sketch31)
sketch31.AttachmentSupport = (doc.XZ_Plane, [""])
sketch31.MapMode = "FlatFace"
sketch31.AttachmentOffset = App.Placement(Vector(0, 0, -0.785), App.Rotation())
sketch31.addGeometry(Part.Circle(Vector(5.1, -17.8, 0), Vector(0, 0, 1), 0.7), False)
sketch31.addConstraint([
    Sketcher.Constraint("Diameter", 0, Q("1.4 mm")),
    Sketcher.Constraint("DistanceX", -1, 1, 0, 3, Q("5.08 mm")),
    Sketcher.Constraint("DistanceY", 0, 3, -1, 1, Q("17.83 mm")),
])
pocket19 = doc.addObject("PartDesign::Pocket", "Pocket018")
body.addObject(pocket19)
pocket19.Profile = sketch31
pocket19.Length = 0.001
pocket19.Reversed = True

# Sketch on XZ plane
sketch32 = doc.addObject("Sketcher::SketchObject", "Sketch031")
body.addObject(sketch32)
sketch32.AttachmentSupport = (doc.XZ_Plane, [""])
sketch32.MapMode = "FlatFace"
sketch32.AttachmentOffset = App.Placement(Vector(0, 0, -0.785), App.Rotation())
sketch32.addGeometry(Part.Circle(Vector(7.6, -17.8, 0), Vector(0, 0, 1), 0.7), False)
sketch32.addConstraint([
    Sketcher.Constraint("Diameter", 0, Q("1.4 mm")),
    Sketcher.Constraint("DistanceX", -1, 1, 0, 3, Q("7.62 mm")),
    Sketcher.Constraint("DistanceY", 0, 3, -1, 1, Q("17.83 mm")),
])
pocket20 = doc.addObject("PartDesign::Pocket", "Pocket019")
body.addObject(pocket20)
pocket20.Profile = sketch32
pocket20.Length = 0.001
pocket20.Reversed = True

# Sketch on XZ plane
sketch33 = doc.addObject("Sketcher::SketchObject", "Sketch032")
body.addObject(sketch33)
sketch33.AttachmentSupport = (doc.XZ_Plane, [""])
sketch33.MapMode = "FlatFace"
sketch33.AttachmentOffset = App.Placement(Vector(0, 0, -0.785), App.Rotation())
sketch33.addGeometry(Part.Circle(Vector(10.2, -17.8, 0), Vector(0, 0, 1), 0.7), False)
sketch33.addConstraint([
    Sketcher.Constraint("Diameter", 0, Q("1.4 mm")),
    Sketcher.Constraint("DistanceX", -1, 1, 0, 3, Q("10.16 mm")),
    Sketcher.Constraint("DistanceY", 0, 3, -1, 1, Q("17.83 mm")),
])
pocket21 = doc.addObject("PartDesign::Pocket", "Pocket020")
body.addObject(pocket21)
pocket21.Profile = sketch33
pocket21.Length = 0.001
pocket21.Reversed = True

# Sketch on XZ plane
sketch34 = doc.addObject("Sketcher::SketchObject", "Sketch033")
body.addObject(sketch34)
sketch34.AttachmentSupport = (doc.XZ_Plane, [""])
sketch34.MapMode = "FlatFace"
sketch34.AttachmentOffset = App.Placement(Vector(0, 0, -0.785), App.Rotation())
sketch34.addGeometry(Part.Circle(Vector(12.7, -17.8, 0), Vector(0, 0, 1), 0.7), False)
sketch34.addConstraint([
    Sketcher.Constraint("Diameter", 0, Q("1.4 mm")),
    Sketcher.Constraint("DistanceX", -1, 1, 0, 3, Q("12.7 mm")),
    Sketcher.Constraint("DistanceY", 0, 3, -1, 1, Q("17.83 mm")),
])
pocket22 = doc.addObject("PartDesign::Pocket", "Pocket021")
body.addObject(pocket22)
pocket22.Profile = sketch34
pocket22.Length = 0.001
pocket22.Reversed = True

# Sketch on XZ plane
sketch35 = doc.addObject("Sketcher::SketchObject", "Sketch034")
body.addObject(sketch35)
sketch35.AttachmentSupport = (doc.XZ_Plane, [""])
sketch35.MapMode = "FlatFace"
sketch35.AttachmentOffset = App.Placement(Vector(0, 0, 0.785), App.Rotation())
sketch35.addGeometry(Part.Circle(Vector(-10.2, -17.8, 0), Vector(0, 0, 1), 0.7), False)
sketch35.addConstraint([
    Sketcher.Constraint("Diameter", 0, Q("1.4 mm")),
    Sketcher.Constraint("DistanceX", 0, 3, -1, 1, Q("10.16 mm")),
    Sketcher.Constraint("DistanceY", 0, 3, -1, 1, Q("17.83 mm")),
])
pocket23 = doc.addObject("PartDesign::Pocket", "Pocket022")
body.addObject(pocket23)
pocket23.Profile = sketch35
pocket23.Length = 0.001

# Sketch on XZ plane
sketch36 = doc.addObject("Sketcher::SketchObject", "Sketch035")
body.addObject(sketch36)
sketch36.AttachmentSupport = (doc.XZ_Plane, [""])
sketch36.MapMode = "FlatFace"
sketch36.AttachmentOffset = App.Placement(Vector(0, 0, 0.785), App.Rotation())
sketch36.addGeometry(Part.Circle(Vector(-7.6, -17.8, 0), Vector(0, 0, 1), 0.7), False)
sketch36.addConstraint([
    Sketcher.Constraint("Diameter", 0, Q("1.4 mm")),
    Sketcher.Constraint("DistanceX", 0, 3, -1, 1, Q("7.62 mm")),
    Sketcher.Constraint("DistanceY", 0, 3, -1, 1, Q("17.83 mm")),
])
pocket24 = doc.addObject("PartDesign::Pocket", "Pocket023")
body.addObject(pocket24)
pocket24.Profile = sketch36
pocket24.Length = 0.001

# Sketch on XZ plane
sketch37 = doc.addObject("Sketcher::SketchObject", "Sketch036")
body.addObject(sketch37)
sketch37.AttachmentSupport = (doc.XZ_Plane, [""])
sketch37.MapMode = "FlatFace"
sketch37.AttachmentOffset = App.Placement(Vector(0, 0, 0.785), App.Rotation())
sketch37.addGeometry(Part.Circle(Vector(-5.1, -17.8, 0), Vector(0, 0, 1), 0.7), False)
sketch37.addConstraint([
    Sketcher.Constraint("Diameter", 0, Q("1.4 mm")),
    Sketcher.Constraint("DistanceX", 0, 3, -1, 1, Q("5.08 mm")),
    Sketcher.Constraint("DistanceY", 0, 3, -1, 1, Q("17.83 mm")),
])
pocket25 = doc.addObject("PartDesign::Pocket", "Pocket024")
body.addObject(pocket25)
pocket25.Profile = sketch37
pocket25.Length = 0.001

# Sketch on XZ plane
sketch38 = doc.addObject("Sketcher::SketchObject", "Sketch037")
body.addObject(sketch38)
sketch38.AttachmentSupport = (doc.XZ_Plane, [""])
sketch38.MapMode = "FlatFace"
sketch38.AttachmentOffset = App.Placement(Vector(0, 0, 0.785), App.Rotation())
sketch38.addGeometry(Part.Circle(Vector(-2.5, -17.8, 0), Vector(0, 0, 1), 0.7), False)
sketch38.addConstraint([
    Sketcher.Constraint("Diameter", 0, Q("1.4 mm")),
    Sketcher.Constraint("DistanceX", 0, 3, -1, 1, Q("2.54 mm")),
    Sketcher.Constraint("DistanceY", 0, 3, -1, 1, Q("17.83 mm")),
])
pocket26 = doc.addObject("PartDesign::Pocket", "Pocket025")
body.addObject(pocket26)
pocket26.Profile = sketch38
pocket26.Length = 0.001

# Sketch on XZ plane
sketch39 = doc.addObject("Sketcher::SketchObject", "Sketch038")
body.addObject(sketch39)
sketch39.AttachmentSupport = (doc.XZ_Plane, [""])
sketch39.MapMode = "FlatFace"
sketch39.AttachmentOffset = App.Placement(Vector(0, 0, 0.785), App.Rotation())
sketch39.addGeometry(Part.Circle(Vector(0, -17.8, 0), Vector(0, 0, 1), 0.7), False)
sketch39.addConstraint([
    Sketcher.Constraint("PointOnObject", 0, 3, -2),
    Sketcher.Constraint("Diameter", 0, Q("1.4 mm")),
    Sketcher.Constraint("DistanceY", 0, 3, -1, 1, Q("17.83 mm")),
])
pocket27 = doc.addObject("PartDesign::Pocket", "Pocket026")
body.addObject(pocket27)
pocket27.Profile = sketch39
pocket27.Length = 0.001

# Sketch on XZ plane
sketch40 = doc.addObject("Sketcher::SketchObject", "Sketch039")
body.addObject(sketch40)
sketch40.AttachmentSupport = (doc.XZ_Plane, [""])
sketch40.MapMode = "FlatFace"
sketch40.AttachmentOffset = App.Placement(Vector(0, 0, 0.785), App.Rotation())
sketch40.addGeometry(Part.Circle(Vector(2.5, -17.8, 0), Vector(0, 0, 1), 0.7), False)
sketch40.addConstraint([
    Sketcher.Constraint("Diameter", 0, Q("1.4 mm")),
    Sketcher.Constraint("DistanceX", -1, 1, 0, 3, Q("2.54 mm")),
    Sketcher.Constraint("DistanceY", 0, 3, -1, 1, Q("17.83 mm")),
])
pocket28 = doc.addObject("PartDesign::Pocket", "Pocket027")
body.addObject(pocket28)
pocket28.Profile = sketch40
pocket28.Length = 0.001

# Sketch on XZ plane
sketch41 = doc.addObject("Sketcher::SketchObject", "Sketch040")
body.addObject(sketch41)
sketch41.AttachmentSupport = (doc.XZ_Plane, [""])
sketch41.MapMode = "FlatFace"
sketch41.AttachmentOffset = App.Placement(Vector(0, 0, 0.785), App.Rotation())
sketch41.addGeometry(Part.Circle(Vector(5.1, -17.8, 0), Vector(0, 0, 1), 0.7), False)
sketch41.addConstraint([
    Sketcher.Constraint("Diameter", 0, Q("1.4 mm")),
    Sketcher.Constraint("DistanceX", -1, 1, 0, 3, Q("5.08 mm")),
    Sketcher.Constraint("DistanceY", 0, 3, -1, 1, Q("17.83 mm")),
])
pocket29 = doc.addObject("PartDesign::Pocket", "Pocket028")
body.addObject(pocket29)
pocket29.Profile = sketch41
pocket29.Length = 0.001

# Sketch on XZ plane
sketch42 = doc.addObject("Sketcher::SketchObject", "Sketch041")
body.addObject(sketch42)
sketch42.AttachmentSupport = (doc.XZ_Plane, [""])
sketch42.MapMode = "FlatFace"
sketch42.AttachmentOffset = App.Placement(Vector(0, 0, 0.785), App.Rotation())
sketch42.addGeometry(Part.Circle(Vector(7.6, -17.8, 0), Vector(0, 0, 1), 0.7), False)
sketch42.addConstraint([
    Sketcher.Constraint("Diameter", 0, Q("1.4 mm")),
    Sketcher.Constraint("DistanceX", -1, 1, 0, 3, Q("7.62 mm")),
    Sketcher.Constraint("DistanceY", 0, 3, -1, 1, Q("17.83 mm")),
])
pocket30 = doc.addObject("PartDesign::Pocket", "Pocket029")
body.addObject(pocket30)
pocket30.Profile = sketch42
pocket30.Length = 0.001

# Sketch on XZ plane
sketch43 = doc.addObject("Sketcher::SketchObject", "Sketch042")
body.addObject(sketch43)
sketch43.AttachmentSupport = (doc.XZ_Plane, [""])
sketch43.MapMode = "FlatFace"
sketch43.AttachmentOffset = App.Placement(Vector(0, 0, 0.785), App.Rotation())
sketch43.addGeometry(Part.Circle(Vector(10.2, -17.8, 0), Vector(0, 0, 1), 0.7), False)
sketch43.addConstraint([
    Sketcher.Constraint("Diameter", 0, Q("1.4 mm")),
    Sketcher.Constraint("DistanceX", -1, 1, 0, 3, Q("10.16 mm")),
    Sketcher.Constraint("DistanceY", 0, 3, -1, 1, Q("17.83 mm")),
])
pocket31 = doc.addObject("PartDesign::Pocket", "Pocket030")
body.addObject(pocket31)
pocket31.Profile = sketch43
pocket31.Length = 0.001

# Sketch on XZ plane
sketch44 = doc.addObject("Sketcher::SketchObject", "Sketch043")
body.addObject(sketch44)
sketch44.AttachmentSupport = (doc.XZ_Plane, [""])
sketch44.MapMode = "FlatFace"
sketch44.AttachmentOffset = App.Placement(Vector(0, 0, 0.785), App.Rotation())
sketch44.addGeometry(Part.Circle(Vector(12.7, -17.8, 0), Vector(0, 0, 1), 0.7), False)
sketch44.addConstraint([
    Sketcher.Constraint("Diameter", 0, Q("1.4 mm")),
    Sketcher.Constraint("DistanceX", -1, 1, 0, 3, Q("12.7 mm")),
    Sketcher.Constraint("DistanceY", 0, 3, -1, 1, Q("17.83 mm")),
])
pocket32 = doc.addObject("PartDesign::Pocket", "Pocket031")
body.addObject(pocket32)
pocket32.Profile = sketch44
pocket32.Length = 0.001

# Sketch on XZ plane
sketch45 = doc.addObject("Sketcher::SketchObject", "Sketch044")
body.addObject(sketch45)
sketch45.AttachmentSupport = (doc.XZ_Plane, [""])
sketch45.MapMode = "FlatFace"
sketch45.AttachmentOffset = App.Placement(Vector(0, 0, -0.785), App.Rotation())
sketch45.addGeometry([
    Part.Circle(Vector(-2.8, -11.6, 0), Vector(0, 0, 1), 0.5),
    Part.Circle(Vector(-2.8, -9.1, 0), Vector(0, 0, 1), 0.5),
], False)
sketch45.addConstraint([
    Sketcher.Constraint("Equal", 0, 1),
    Sketcher.Constraint("Vertical", 0, 3, 1, 3),
    Sketcher.Constraint("Diameter", 0, Q("1 mm")),
    Sketcher.Constraint("DistanceX", 0, 3, -1, 1, Q("2.8 mm")),
    Sketcher.Constraint("DistanceY", 0, 3, -1, 1, Q("11.6 mm")),
    Sketcher.Constraint("DistanceY", 1, 3, -1, 1, Q("9.1 mm")),
])
doc.recompute()
hole12 = doc.addObject("PartDesign::Hole", "Hole011")
body.addObject(hole12)
hole12.Profile = sketch45
hole12.ThreadType = "None"
hole12.Diameter = 1
hole12.DepthType = "ThroughAll"
hole12.Reversed = True

# Sketch on XZ plane
sketch46 = doc.addObject("Sketcher::SketchObject", "Sketch045")
body.addObject(sketch46)
sketch46.AttachmentSupport = (doc.XZ_Plane, [""])
sketch46.MapMode = "FlatFace"
sketch46.AttachmentOffset = App.Placement(Vector(0, 0, -0.784), App.Rotation())
sketch46.addGeometry([
    Part.Circle(Vector(-2.8, -11.6, 0), Vector(0, 0, 1), 0.7),
    Part.Circle(Vector(-2.8, -11.6, 0), Vector(0, 0, 1), 0.5),
    Part.Circle(Vector(-2.8, -9.1, 0), Vector(0, 0, 1), 0.7),
    Part.Circle(Vector(-2.8, -9.1, 0), Vector(0, 0, 1), 0.5),
], False)
sketch46.addConstraint([
    Sketcher.Constraint("Coincident", 1, 3, 0, 3),
    Sketcher.Constraint("Coincident", 3, 3, 2, 3),
    Sketcher.Constraint("Equal", 0, 2),
    Sketcher.Constraint("Equal", 1, 3),
    Sketcher.Constraint("Vertical", 1, 3, 2, 3),
    Sketcher.Constraint("Diameter", 1, Q("1 mm")),
    Sketcher.Constraint("Diameter", 0, Q("1.4 mm")),
    Sketcher.Constraint("DistanceX", 0, 3, -1, 1, Q("2.8 mm")),
    Sketcher.Constraint("DistanceY", 0, 3, -1, 1, Q("11.6 mm")),
    Sketcher.Constraint("DistanceY", 2, 3, -1, 1, Q("9.1 mm")),
])
pocket33 = doc.addObject("PartDesign::Pocket", "Pocket032")
body.addObject(pocket33)
pocket33.Profile = sketch46
pocket33.Length = 0.001
doc.recompute()

mirrored3 = doc.addObject("PartDesign::Mirrored", "Mirrored002")
body.addObject(mirrored3)
mirrored3.Originals = [pocket33]
mirrored3.MirrorPlane = (doc.XZ_Plane, [""])
body.Tip = mirrored3

doc.recompute()
